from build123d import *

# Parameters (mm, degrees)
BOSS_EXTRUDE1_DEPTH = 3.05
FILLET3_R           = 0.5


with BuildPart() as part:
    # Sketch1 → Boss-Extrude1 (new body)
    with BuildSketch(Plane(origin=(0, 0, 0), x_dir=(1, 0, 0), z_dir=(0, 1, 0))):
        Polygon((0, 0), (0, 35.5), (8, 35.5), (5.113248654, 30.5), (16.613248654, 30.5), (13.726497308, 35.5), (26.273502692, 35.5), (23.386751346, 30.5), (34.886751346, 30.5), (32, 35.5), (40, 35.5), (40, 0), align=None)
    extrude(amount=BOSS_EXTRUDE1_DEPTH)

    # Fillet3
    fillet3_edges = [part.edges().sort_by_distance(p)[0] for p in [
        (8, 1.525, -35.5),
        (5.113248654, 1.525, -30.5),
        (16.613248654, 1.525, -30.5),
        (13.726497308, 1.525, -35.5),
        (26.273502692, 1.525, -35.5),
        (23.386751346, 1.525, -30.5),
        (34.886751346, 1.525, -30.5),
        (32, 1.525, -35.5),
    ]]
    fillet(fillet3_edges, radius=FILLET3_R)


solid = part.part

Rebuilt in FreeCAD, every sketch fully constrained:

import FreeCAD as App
import Part
import Sketcher
from FreeCAD import Vector
Q = App.Units.Quantity


def edges_at(feature, points):
    """Names of the edges that pass closest to the given points."""
    edges = feature.Shape.Edges
    near = lambda p: min(range(len(edges)), key=lambda i: edges[i].distToShape(Part.Vertex(*p))[0])
    return sorted({f"Edge{near(p) + 1}" for p in points})


def add_polygon(sketch, points):
    """Adds a closed chain of lines whose ends are joined by coincident constraints."""
    first, n = sketch.GeometryCount, len(points)
    for a, b in zip(points, points[1:] + points[:1]):
        sketch.addGeometry(Part.LineSegment(App.Vector(*a, 0), App.Vector(*b, 0)), False)
    for i in range(n):
        sketch.addConstraint(Sketcher.Constraint("Coincident", first + i, 2, first + (i + 1) % n, 1))

doc = App.newDocument("Part")
body = doc.addObject("PartDesign::Body", "Body")

# Sketch on XZ plane
sketch1 = body.newObject("Sketcher::SketchObject", "Sketch")
sketch1.AttachmentSupport = (doc.getObject("XZ_Plane"), [""])
sketch1.MapMode = "FlatFace"
add_polygon(sketch1, [(0, -35.5), (0, 0), (40, 0), (40, -35.5), (32, -35.5), (34.886751, -30.5), (23.386751, -30.5), (26.273503, -35.5), (13.726497, -35.5), (16.613249, -30.5), (5.113249, -30.5), (8, -35.5)])  # lines 0-11
sketch1.addConstraint([
    Sketcher.Constraint("Vertical", 0),
    Sketcher.Constraint("Horizontal", 1),
    Sketcher.Constraint("Vertical", 2),
    Sketcher.Constraint("Horizontal", 3),
    Sketcher.Constraint("Horizontal", 5),
    Sketcher.Constraint("Horizontal", 7),
    Sketcher.Constraint("Horizontal", 9),
    Sketcher.Constraint("Horizontal", 11),
    Sketcher.Constraint("Coincident", 0, 2, -1, 1),
    Sketcher.Constraint("Parallel", 4, 8),
    Sketcher.Constraint("Parallel", 6, 10),
    Sketcher.Constraint("Horizontal", 3, 2, 6, 2),
    Sketcher.Constraint("Horizontal", 5, 2, 8, 2),
    Sketcher.Constraint("Horizontal", 7, 2, 10, 2),
    Sketcher.Constraint("Equal", 5, 9),
    Sketcher.Constraint("Equal", 3, 11),
    Sketcher.Constraint("Equal", 4, 6),
    Sketcher.Constraint("DistanceX", 1, 1, 1, 2, 40.0),
    Sketcher.Constraint("DistanceX", 3, 2, 3, 1, 8.0),
    Sketcher.Constraint("Angle", 4, Q("60 deg")),
    Sketcher.Constraint("DistanceX", 5, 2, 5, 1, 11.5),
    Sketcher.Constraint("DistanceY", 0, 1, 0, 2, 35.5),
    Sketcher.Constraint("DistanceY", 3, 2, 4, 2, 5.0),
])
pad1 = body.newObject("PartDesign::Pad", "Pad")
pad1.Profile = sketch1
pad1.Length = 3.05
pad1.Reversed = True
doc.recompute()

fillet = body.newObject("PartDesign::Fillet", "Fillet")
fillet.Base = (pad1, edges_at(pad1, [
    (8, 1.525, -35.5),
    (5.113, 1.525, -30.5),
    (16.613, 1.525, -30.5),
    (13.726, 1.525, -35.5),
    (26.274, 1.525, -35.5),
    (23.387, 1.525, -30.5),
    (34.887, 1.525, -30.5),
    (32, 1.525, -35.5),
]))
fillet.Radius = 0.5

doc.recompute()
